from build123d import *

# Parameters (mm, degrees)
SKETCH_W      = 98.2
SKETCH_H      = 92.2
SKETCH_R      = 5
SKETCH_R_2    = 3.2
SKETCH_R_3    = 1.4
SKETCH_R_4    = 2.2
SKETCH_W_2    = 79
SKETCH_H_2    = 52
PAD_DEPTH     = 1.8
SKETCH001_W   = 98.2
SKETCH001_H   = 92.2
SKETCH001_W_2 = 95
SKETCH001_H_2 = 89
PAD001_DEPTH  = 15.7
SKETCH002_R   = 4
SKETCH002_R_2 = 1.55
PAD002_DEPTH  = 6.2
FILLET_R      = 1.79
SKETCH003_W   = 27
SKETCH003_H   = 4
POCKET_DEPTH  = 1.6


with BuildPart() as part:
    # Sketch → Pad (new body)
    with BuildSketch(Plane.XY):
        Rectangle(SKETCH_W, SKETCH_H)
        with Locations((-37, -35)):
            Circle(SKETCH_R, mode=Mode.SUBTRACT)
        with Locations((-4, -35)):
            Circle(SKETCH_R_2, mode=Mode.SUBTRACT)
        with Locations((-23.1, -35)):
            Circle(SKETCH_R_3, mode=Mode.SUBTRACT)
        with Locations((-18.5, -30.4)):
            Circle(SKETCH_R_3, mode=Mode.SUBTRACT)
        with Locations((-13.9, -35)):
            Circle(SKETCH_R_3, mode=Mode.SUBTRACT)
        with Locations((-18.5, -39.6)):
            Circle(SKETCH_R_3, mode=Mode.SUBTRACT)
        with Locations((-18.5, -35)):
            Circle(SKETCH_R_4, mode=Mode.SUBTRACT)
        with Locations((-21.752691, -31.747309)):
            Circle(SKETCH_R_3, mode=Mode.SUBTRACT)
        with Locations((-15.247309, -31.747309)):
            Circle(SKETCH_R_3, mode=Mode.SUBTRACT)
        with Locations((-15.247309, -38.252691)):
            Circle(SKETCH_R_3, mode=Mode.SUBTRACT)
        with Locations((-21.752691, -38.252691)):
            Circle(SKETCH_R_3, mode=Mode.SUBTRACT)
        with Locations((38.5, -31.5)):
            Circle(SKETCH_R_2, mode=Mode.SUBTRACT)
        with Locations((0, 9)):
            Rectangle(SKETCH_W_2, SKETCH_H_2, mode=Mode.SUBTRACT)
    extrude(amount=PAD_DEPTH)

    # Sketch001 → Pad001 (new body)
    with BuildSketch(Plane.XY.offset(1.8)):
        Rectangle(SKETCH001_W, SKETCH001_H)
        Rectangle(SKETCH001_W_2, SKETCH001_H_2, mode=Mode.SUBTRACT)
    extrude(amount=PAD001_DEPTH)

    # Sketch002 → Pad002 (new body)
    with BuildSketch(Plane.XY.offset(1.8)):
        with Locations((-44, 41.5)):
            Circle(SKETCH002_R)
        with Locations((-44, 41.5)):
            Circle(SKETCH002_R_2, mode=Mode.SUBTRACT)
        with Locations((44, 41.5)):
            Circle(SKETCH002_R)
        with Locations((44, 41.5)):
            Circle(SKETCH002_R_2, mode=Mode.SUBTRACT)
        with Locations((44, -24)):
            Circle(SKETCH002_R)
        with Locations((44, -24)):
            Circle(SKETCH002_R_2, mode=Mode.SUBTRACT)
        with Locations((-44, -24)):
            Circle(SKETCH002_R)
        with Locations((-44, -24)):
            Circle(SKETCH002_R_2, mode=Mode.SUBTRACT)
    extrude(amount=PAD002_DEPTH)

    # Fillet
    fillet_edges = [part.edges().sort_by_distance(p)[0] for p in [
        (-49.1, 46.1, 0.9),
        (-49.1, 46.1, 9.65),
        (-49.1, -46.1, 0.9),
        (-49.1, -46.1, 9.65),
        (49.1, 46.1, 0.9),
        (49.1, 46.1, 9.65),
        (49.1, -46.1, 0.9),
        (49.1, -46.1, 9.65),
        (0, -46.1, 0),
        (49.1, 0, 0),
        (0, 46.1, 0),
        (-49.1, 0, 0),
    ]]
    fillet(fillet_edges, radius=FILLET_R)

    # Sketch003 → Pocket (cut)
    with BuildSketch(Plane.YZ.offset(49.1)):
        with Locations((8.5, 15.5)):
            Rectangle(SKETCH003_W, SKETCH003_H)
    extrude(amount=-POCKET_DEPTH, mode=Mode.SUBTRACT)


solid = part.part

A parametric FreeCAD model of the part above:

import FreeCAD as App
import Part
import Sketcher

V = App.Vector
Q = App.Units.Quantity


def edges_at(feature, points):
    """Names of the edges that pass closest to the given points."""
    edges = feature.Shape.Edges
    near = lambda p: min(range(len(edges)), key=lambda i: edges[i].distToShape(Part.Vertex(*p))[0])
    return sorted({f"Edge{near(p) + 1}" for p in points})


def add_polygon(sketch, points):
    """Adds a closed chain of lines whose ends are joined by coincident constraints."""
    first, n = sketch.GeometryCount, len(points)
    for a, b in zip(points, points[1:] + points[:1]):
        sketch.addGeometry(Part.LineSegment(App.Vector(*a, 0), App.Vector(*b, 0)), False)
    for i in range(n):
        sketch.addConstraint(Sketcher.Constraint("Coincident", first + i, 2, first + (i + 1) % n, 1))

doc = App.newDocument("Part")
body = doc.addObject("PartDesign::Body", "Body")

sketch1 = doc.addObject("Sketcher::SketchObject", "Sketch")
body.addObject(sketch1)
sketch1.AttachmentSupport = (doc.XY_Plane, [""])
sketch1.MapMode = "FlatFace"
add_polygon(sketch1, [(-49.1, 46.1), (-49.1, -46.1), (49.1, -46.1), (49.1, 46.1)])
sketch1.addGeometry(Part.Circle(V(-37, -35, 0), V(0, 0, 1), 5), False)
sketch1.addGeometry(Part.Circle(V(-21.8, -38.3, 0), V(0, 0, 1), 1.4), False)
sketch1.addGeometry(Part.Circle(V(-23.1, -35, 0), V(0, 0, 1), 1.4), False)
sketch1.addGeometry(Part.Circle(V(-21.8, -31.7, 0), V(0, 0, 1), 1.4), False)
sketch1.addGeometry(Part.Circle(V(-18.5, -39.6, 0), V(0, 0, 1), 1.4), False)
sketch1.addGeometry(Part.Circle(V(-15.2, -38.3, 0), V(0, 0, 1), 1.4), False)
sketch1.addGeometry(Part.Circle(V(-18.5, -35, 0), V(0, 0, 1), 2.2), False)
sketch1.addGeometry(Part.Circle(V(-13.9, -35, 0), V(0, 0, 1), 1.4), False)
sketch1.addGeometry(Part.Circle(V(-15.2, -31.7, 0), V(0, 0, 1), 1.4), False)
sketch1.addGeometry(Part.Circle(V(-4, -35, 0), V(0, 0, 1), 3.2), False)
sketch1.addGeometry(Part.Circle(V(-18.5, -30.4, 0), V(0, 0, 1), 1.4), False)
sketch1.addGeometry(Part.Circle(V(38.5, -31.5, 0), V(0, 0, 1), 3.2), False)
add_polygon(sketch1, [(39.5, -17), (-39.5, -17), (-39.5, 35), (39.5, 35)])
sketch1.addConstraint([
    Sketcher.Constraint("Vertical", 0),
    Sketcher.Constraint("Horizontal", 1),
    Sketcher.Constraint("Vertical", 2),
    Sketcher.Constraint("Horizontal", 3),
    Sketcher.Constraint("Horizontal", 16),
    Sketcher.Constraint("Vertical", 17),
    Sketcher.Constraint("Horizontal", 18),
    Sketcher.Constraint("Vertical", 19),
    Sketcher.Constraint("Equal", 5, 6),
    Sketcher.Constraint("Equal", 6, 7),
    Sketcher.Constraint("Equal", 7, 8),
    Sketcher.Constraint("Equal", 8, 9),
    Sketcher.Constraint("Equal", 9, 11),
    Sketcher.Constraint("Equal", 11, 12),
    Sketcher.Constraint("Equal", 12, 14),
    Sketcher.Constraint("Equal", 13, 15),
    Sketcher.Constraint("Symmetric", 0, 2, 2, 2, -1, 1),
    Sketcher.Constraint("Horizontal", 4, 3, 6, 3),
    Sketcher.Constraint("Horizontal", 5, 3, 9, 3),
    Sketcher.Constraint("Horizontal", 6, 3, 10, 3),
    Sketcher.Constraint("Horizontal", 10, 3, 11, 3),
    Sketcher.Constraint("Horizontal", 7, 3, 12, 3),
    Sketcher.Constraint("Horizontal", 11, 3, 13, 3),
    Sketcher.Constraint("Vertical", 5, 3, 7, 3),
    Sketcher.Constraint("Vertical", 8, 3, 10, 3),
    Sketcher.Constraint("Vertical", 9, 3, 12, 3),
    Sketcher.Constraint("Vertical", 10, 3, 14, 3),
    Sketcher.Constraint("Diameter", 4, Q("10 mm")),
    Sketcher.Constraint("Diameter", 5, Q("2.8 mm")),
    Sketcher.Constraint("Diameter", 10, Q("4.4 mm")),
    Sketcher.Constraint("Diameter", 13, Q("6.4 mm")),
    Sketcher.Constraint("DistanceX", 16, 2, 16, 1, Q("79 mm")),
    Sketcher.Constraint("DistanceY", 17, 1, 17, 2, Q("52 mm")),
    Sketcher.Constraint("DistanceX", 1, 1, 1, 2, Q("98.2 mm")),
    Sketcher.Constraint("DistanceY", 0, 2, 0, 1, Q("92.2 mm")),
    Sketcher.Constraint("DistanceX", 4, 3, -1, 1, Q("37 mm")),
    Sketcher.Constraint("DistanceY", 4, 3, -1, 1, Q("35 mm")),
    Sketcher.Constraint("DistanceX", 13, 3, -1, 1, Q("4 mm")),
    Sketcher.Constraint("DistanceY", 16, 2, -1, 1, Q("17 mm")),
    Sketcher.Constraint("DistanceX", 14, 3, 15, 3, Q("57 mm")),
    Sketcher.Constraint("DistanceX", 0, 2, 6, 3, Q("26 mm")),
    Sketcher.Constraint("DistanceX", 11, 3, 1, 2, Q("63 mm")),
    Sketcher.Constraint("DistanceX", 16, 2, 14, 3, Q("21 mm")),
    Sketcher.Constraint("DistanceX", 8, 3, -1, 1, Q("18.5 mm")),
    Sketcher.Constraint("DistanceY", 8, 3, -1, 1, Q("39.6 mm")),
    Sketcher.Constraint("DistanceY", 14, 3, -1, 1, Q("30.4 mm")),
    Sketcher.Constraint("DistanceY", 15, 3, -1, 1, Q("31.5 mm")),
    Sketcher.Constraint("DistanceX", 5, 3, -1, 1, Q("21.752691 mm")),
    Sketcher.Constraint("DistanceY", 5, 3, -1, 1, Q("38.252691 mm")),
    Sketcher.Constraint("DistanceY", 7, 3, -1, 1, Q("31.747309 mm")),
    Sketcher.Constraint("DistanceX", 9, 3, -1, 1, Q("15.247309 mm")),
])
pad1 = doc.addObject("PartDesign::Pad", "Pad")
body.addObject(pad1)
pad1.Profile = sketch1
pad1.Length = 1.8

sketch2 = doc.addObject("Sketcher::SketchObject", "Sketch001")
body.addObject(sketch2)
sketch2.AttachmentSupport = (doc.XY_Plane, [""])
sketch2.MapMode = "FlatFace"
sketch2.AttachmentOffset = App.Placement(V(0, 0, 1.8), App.Rotation())
add_polygon(sketch2, [(-49, 46), (-49, -46), (49, -46), (49, 46)])
add_polygon(sketch2, [(48, -44), (-48, -44), (-48, 44), (48, 44)])
sketch2.addConstraint([
    Sketcher.Constraint("Vertical", 0),
    Sketcher.Constraint("Horizontal", 1),
    Sketcher.Constraint("Vertical", 2),
    Sketcher.Constraint("Horizontal", 3),
    Sketcher.Constraint("Horizontal", 4),
    Sketcher.Constraint("Vertical", 5),
    Sketcher.Constraint("Horizontal", 6),
    Sketcher.Constraint("Vertical", 7),
    Sketcher.Constraint("Symmetric", 0, 2, 2, 2, -1, 1),
    Sketcher.Constraint("Symmetric", 4, 2, 6, 2, -1, 1),
    Sketcher.Constraint("DistanceX", 4, 2, 4, 1, Q("95 mm")),
    Sketcher.Constraint("DistanceY", 5, 1, 5, 2, Q("89 mm")),
    Sketcher.Constraint("DistanceX", 1, 1, 1, 2, Q("98.2 mm")),
    Sketcher.Constraint("DistanceY", 0, 2, 0, 1, Q("92.2 mm")),
])
pad2 = doc.addObject("PartDesign::Pad", "Pad001")
body.addObject(pad2)
pad2.Profile = sketch2
pad2.Length = 15.7

sketch3 = doc.addObject("Sketcher::SketchObject", "Sketch002")
body.addObject(sketch3)
sketch3.AttachmentSupport = (doc.XY_Plane, [""])
sketch3.MapMode = "FlatFace"
sketch3.AttachmentOffset = App.Placement(V(0, 0, 1.8), App.Rotation())
sketch3.addGeometry([
    Part.Circle(V(-44, 41.5, 0), V(0, 0, 1), 4),
    Part.Circle(V(-44, 41.5, 0), V(0, 0, 1), 1.6),
    Part.Circle(V(44, 41.5, 0), V(0, 0, 1), 4),
    Part.Circle(V(44, 41.5, 0), V(0, 0, 1), 1.6),
    Part.Circle(V(44, -24, 0), V(0, 0, 1), 4),
    Part.Circle(V(44, -24, 0), V(0, 0, 1), 1.6),
    Part.Circle(V(-44, -24, 0), V(0, 0, 1), 4),
    Part.Circle(V(-44, -24, 0), V(0, 0, 1), 1.6),
], False)
sketch3.addConstraint([
    Sketcher.Constraint("Coincident", 1, 3, 0, 3),
    Sketcher.Constraint("Coincident", 3, 3, 2, 3),
    Sketcher.Constraint("Coincident", 5, 3, 4, 3),
    Sketcher.Constraint("Coincident", 7, 3, 6, 3),
    Sketcher.Constraint("Equal", 0, 2),
    Sketcher.Constraint("Equal", 1, 3),
    Sketcher.Constraint("Equal", 2, 4),
    Sketcher.Constraint("Equal", 3, 5),
    Sketcher.Constraint("Equal", 4, 6),
    Sketcher.Constraint("Equal", 5, 7),
    Sketcher.Constraint("Symmetric", 0, 3, 2, 3, -2),
    Sketcher.Constraint("Symmetric", 4, 3, 6, 3, -2),
    Sketcher.Constraint("Vertical", 3, 3, 4, 3),
    Sketcher.Constraint("Diameter", 0, Q("8 mm")),
    Sketcher.Constraint("Diameter", 1, Q("3.1 mm")),
    Sketcher.Constraint("DistanceX", 0, 3, -1, 1, Q("44 mm")),
    Sketcher.Constraint("DistanceY", 4, 3, -1, 1, Q("24 mm")),
    Sketcher.Constraint("DistanceY", -1, 1, 0, 3, Q("41.5 mm")),
])
pad3 = doc.addObject("PartDesign::Pad", "Pad002")
body.addObject(pad3)
pad3.Profile = sketch3
pad3.Length = 6.2
doc.recompute()

fillet = doc.addObject("PartDesign::Fillet", "Fillet")
body.addObject(fillet)
fillet.Base = (pad3, edges_at(pad3, [
    (-49.1, 46.1, 8.75),
    (-49.1, 46.1, 8.75),
    (-49.1, -46.1, 8.75),
    (-49.1, -46.1, 8.75),
    (49.1, 46.1, 8.75),
    (49.1, 46.1, 8.75),
    (49.1, -46.1, 8.75),
    (49.1, -46.1, 8.75),
    (0, -46.1, 0),
    (49.1, 0, 0),
    (0, 46.1, 0),
    (-49.1, 0, 0),
]))
fillet.Radius = 1.79

sketch4 = doc.addObject("Sketcher::SketchObject", "Sketch003")
body.addObject(sketch4)
sketch4.AttachmentSupport = (doc.YZ_Plane, [""])
sketch4.MapMode = "FlatFace"
sketch4.AttachmentOffset = App.Placement(V(0, 0, 49.1), App.Rotation())
add_polygon(sketch4, [(-5, 17.5), (-5, 13.5), (22, 13.5), (22, 17.5)])
sketch4.addConstraint([
    Sketcher.Constraint("Vertical", 0),
    Sketcher.Constraint("Horizontal", 1),
    Sketcher.Constraint("Vertical", 2),
    Sketcher.Constraint("Horizontal", 3),
    Sketcher.Constraint("DistanceX", 1, 1, 1, 2, Q("27 mm")),
    Sketcher.Constraint("DistanceY", 0, 2, 0, 1, Q("4 mm")),
    Sketcher.Constraint("DistanceX", 0, 2, -1, 1, Q("5 mm")),
    Sketcher.Constraint("DistanceY", -1, 1, 0, 2, Q("13.5 mm")),
])
pocket1 = doc.addObject("PartDesign::Pocket", "Pocket")
body.addObject(pocket1)
pocket1.Profile = sketch4
pocket1.Length = 1.6

doc.recompute()
